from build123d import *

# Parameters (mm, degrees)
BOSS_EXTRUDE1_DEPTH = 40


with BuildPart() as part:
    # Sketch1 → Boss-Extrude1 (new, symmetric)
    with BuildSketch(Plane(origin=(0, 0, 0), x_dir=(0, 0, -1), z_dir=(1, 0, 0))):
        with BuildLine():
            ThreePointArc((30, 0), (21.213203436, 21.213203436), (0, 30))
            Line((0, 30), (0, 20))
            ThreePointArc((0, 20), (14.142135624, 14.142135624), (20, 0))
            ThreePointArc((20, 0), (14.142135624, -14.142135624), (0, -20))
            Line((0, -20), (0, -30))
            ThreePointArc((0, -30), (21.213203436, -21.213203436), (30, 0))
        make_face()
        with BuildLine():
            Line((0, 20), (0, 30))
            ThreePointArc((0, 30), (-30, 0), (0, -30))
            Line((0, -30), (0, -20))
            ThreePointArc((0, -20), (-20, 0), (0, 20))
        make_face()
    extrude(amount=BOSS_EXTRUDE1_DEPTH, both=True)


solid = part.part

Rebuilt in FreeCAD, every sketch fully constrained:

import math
import FreeCAD as App
import Part
import Sketcher

V = App.Vector

doc = App.newDocument("Part")
body = doc.addObject("PartDesign::Body", "Body")

# Sketch on YZ plane
sketch1 = body.newObject("Sketcher::SketchObject", "Sketch")
sketch1.AttachmentSupport = (doc.getObject("YZ_Plane"), [""])
sketch1.MapMode = "FlatFace"
sketch1.addGeometry([
    Part.ArcOfCircle(Part.Circle(V(0, 0, 0), V(0, 0, 1), 30), math.radians(-90), math.radians(0)),  # 0
    Part.ArcOfCircle(Part.Circle(V(0, 0, 0), V(0, 0, 1), 30), math.radians(0), math.radians(180)),  # 1
    Part.ArcOfCircle(Part.Circle(V(0, 0, 0), V(0, 0, 1), 30), math.radians(180), math.radians(270)),  # 2
    Part.ArcOfCircle(Part.Circle(V(0, 0, 0), V(0, 0, 1), 20), math.radians(180), math.radians(270)),  # 3
    Part.ArcOfCircle(Part.Circle(V(0, 0, 0), V(0, 0, 1), 20), math.radians(0), math.radians(180)),  # 4
    Part.ArcOfCircle(Part.Circle(V(0, 0, 0), V(0, 0, 1), 20), math.radians(-90), math.radians(0)),  # 5
], False)
sketch1.addConstraint([
    Sketcher.Constraint("Tangent", 0, 2, 1, 1),
    Sketcher.Constraint("Tangent", 1, 2, 2, 1),
    Sketcher.Constraint("Tangent", 2, 2, 0, 1),
    Sketcher.Constraint("Tangent", 3, 1, 4, 2),
    Sketcher.Constraint("Tangent", 4, 1, 5, 2),
    Sketcher.Constraint("Tangent", 5, 1, 3, 2),
    Sketcher.Constraint("Coincident", 0, 3, -1, 1),
    Sketcher.Constraint("Coincident", 3, 3, -1, 1),
    Sketcher.Constraint("PointOnObject", 0, 2, -1),
    Sketcher.Constraint("PointOnObject", 1, 2, -1),
    Sketcher.Constraint("PointOnObject", 2, 2, -2),
    Sketcher.Constraint("PointOnObject", 3, 1, -1),
    Sketcher.Constraint("PointOnObject", 4, 1, -1),
    Sketcher.Constraint("PointOnObject", 5, 1, -2),
    Sketcher.Constraint("Radius", 0, 30.0),
    Sketcher.Constraint("Radius", 3, 20.0),
])
pad1 = body.newObject("PartDesign::Pad", "Pad")
pad1.Profile = sketch1
pad1.Length = 80
pad1.Midplane = True

doc.recompute()
